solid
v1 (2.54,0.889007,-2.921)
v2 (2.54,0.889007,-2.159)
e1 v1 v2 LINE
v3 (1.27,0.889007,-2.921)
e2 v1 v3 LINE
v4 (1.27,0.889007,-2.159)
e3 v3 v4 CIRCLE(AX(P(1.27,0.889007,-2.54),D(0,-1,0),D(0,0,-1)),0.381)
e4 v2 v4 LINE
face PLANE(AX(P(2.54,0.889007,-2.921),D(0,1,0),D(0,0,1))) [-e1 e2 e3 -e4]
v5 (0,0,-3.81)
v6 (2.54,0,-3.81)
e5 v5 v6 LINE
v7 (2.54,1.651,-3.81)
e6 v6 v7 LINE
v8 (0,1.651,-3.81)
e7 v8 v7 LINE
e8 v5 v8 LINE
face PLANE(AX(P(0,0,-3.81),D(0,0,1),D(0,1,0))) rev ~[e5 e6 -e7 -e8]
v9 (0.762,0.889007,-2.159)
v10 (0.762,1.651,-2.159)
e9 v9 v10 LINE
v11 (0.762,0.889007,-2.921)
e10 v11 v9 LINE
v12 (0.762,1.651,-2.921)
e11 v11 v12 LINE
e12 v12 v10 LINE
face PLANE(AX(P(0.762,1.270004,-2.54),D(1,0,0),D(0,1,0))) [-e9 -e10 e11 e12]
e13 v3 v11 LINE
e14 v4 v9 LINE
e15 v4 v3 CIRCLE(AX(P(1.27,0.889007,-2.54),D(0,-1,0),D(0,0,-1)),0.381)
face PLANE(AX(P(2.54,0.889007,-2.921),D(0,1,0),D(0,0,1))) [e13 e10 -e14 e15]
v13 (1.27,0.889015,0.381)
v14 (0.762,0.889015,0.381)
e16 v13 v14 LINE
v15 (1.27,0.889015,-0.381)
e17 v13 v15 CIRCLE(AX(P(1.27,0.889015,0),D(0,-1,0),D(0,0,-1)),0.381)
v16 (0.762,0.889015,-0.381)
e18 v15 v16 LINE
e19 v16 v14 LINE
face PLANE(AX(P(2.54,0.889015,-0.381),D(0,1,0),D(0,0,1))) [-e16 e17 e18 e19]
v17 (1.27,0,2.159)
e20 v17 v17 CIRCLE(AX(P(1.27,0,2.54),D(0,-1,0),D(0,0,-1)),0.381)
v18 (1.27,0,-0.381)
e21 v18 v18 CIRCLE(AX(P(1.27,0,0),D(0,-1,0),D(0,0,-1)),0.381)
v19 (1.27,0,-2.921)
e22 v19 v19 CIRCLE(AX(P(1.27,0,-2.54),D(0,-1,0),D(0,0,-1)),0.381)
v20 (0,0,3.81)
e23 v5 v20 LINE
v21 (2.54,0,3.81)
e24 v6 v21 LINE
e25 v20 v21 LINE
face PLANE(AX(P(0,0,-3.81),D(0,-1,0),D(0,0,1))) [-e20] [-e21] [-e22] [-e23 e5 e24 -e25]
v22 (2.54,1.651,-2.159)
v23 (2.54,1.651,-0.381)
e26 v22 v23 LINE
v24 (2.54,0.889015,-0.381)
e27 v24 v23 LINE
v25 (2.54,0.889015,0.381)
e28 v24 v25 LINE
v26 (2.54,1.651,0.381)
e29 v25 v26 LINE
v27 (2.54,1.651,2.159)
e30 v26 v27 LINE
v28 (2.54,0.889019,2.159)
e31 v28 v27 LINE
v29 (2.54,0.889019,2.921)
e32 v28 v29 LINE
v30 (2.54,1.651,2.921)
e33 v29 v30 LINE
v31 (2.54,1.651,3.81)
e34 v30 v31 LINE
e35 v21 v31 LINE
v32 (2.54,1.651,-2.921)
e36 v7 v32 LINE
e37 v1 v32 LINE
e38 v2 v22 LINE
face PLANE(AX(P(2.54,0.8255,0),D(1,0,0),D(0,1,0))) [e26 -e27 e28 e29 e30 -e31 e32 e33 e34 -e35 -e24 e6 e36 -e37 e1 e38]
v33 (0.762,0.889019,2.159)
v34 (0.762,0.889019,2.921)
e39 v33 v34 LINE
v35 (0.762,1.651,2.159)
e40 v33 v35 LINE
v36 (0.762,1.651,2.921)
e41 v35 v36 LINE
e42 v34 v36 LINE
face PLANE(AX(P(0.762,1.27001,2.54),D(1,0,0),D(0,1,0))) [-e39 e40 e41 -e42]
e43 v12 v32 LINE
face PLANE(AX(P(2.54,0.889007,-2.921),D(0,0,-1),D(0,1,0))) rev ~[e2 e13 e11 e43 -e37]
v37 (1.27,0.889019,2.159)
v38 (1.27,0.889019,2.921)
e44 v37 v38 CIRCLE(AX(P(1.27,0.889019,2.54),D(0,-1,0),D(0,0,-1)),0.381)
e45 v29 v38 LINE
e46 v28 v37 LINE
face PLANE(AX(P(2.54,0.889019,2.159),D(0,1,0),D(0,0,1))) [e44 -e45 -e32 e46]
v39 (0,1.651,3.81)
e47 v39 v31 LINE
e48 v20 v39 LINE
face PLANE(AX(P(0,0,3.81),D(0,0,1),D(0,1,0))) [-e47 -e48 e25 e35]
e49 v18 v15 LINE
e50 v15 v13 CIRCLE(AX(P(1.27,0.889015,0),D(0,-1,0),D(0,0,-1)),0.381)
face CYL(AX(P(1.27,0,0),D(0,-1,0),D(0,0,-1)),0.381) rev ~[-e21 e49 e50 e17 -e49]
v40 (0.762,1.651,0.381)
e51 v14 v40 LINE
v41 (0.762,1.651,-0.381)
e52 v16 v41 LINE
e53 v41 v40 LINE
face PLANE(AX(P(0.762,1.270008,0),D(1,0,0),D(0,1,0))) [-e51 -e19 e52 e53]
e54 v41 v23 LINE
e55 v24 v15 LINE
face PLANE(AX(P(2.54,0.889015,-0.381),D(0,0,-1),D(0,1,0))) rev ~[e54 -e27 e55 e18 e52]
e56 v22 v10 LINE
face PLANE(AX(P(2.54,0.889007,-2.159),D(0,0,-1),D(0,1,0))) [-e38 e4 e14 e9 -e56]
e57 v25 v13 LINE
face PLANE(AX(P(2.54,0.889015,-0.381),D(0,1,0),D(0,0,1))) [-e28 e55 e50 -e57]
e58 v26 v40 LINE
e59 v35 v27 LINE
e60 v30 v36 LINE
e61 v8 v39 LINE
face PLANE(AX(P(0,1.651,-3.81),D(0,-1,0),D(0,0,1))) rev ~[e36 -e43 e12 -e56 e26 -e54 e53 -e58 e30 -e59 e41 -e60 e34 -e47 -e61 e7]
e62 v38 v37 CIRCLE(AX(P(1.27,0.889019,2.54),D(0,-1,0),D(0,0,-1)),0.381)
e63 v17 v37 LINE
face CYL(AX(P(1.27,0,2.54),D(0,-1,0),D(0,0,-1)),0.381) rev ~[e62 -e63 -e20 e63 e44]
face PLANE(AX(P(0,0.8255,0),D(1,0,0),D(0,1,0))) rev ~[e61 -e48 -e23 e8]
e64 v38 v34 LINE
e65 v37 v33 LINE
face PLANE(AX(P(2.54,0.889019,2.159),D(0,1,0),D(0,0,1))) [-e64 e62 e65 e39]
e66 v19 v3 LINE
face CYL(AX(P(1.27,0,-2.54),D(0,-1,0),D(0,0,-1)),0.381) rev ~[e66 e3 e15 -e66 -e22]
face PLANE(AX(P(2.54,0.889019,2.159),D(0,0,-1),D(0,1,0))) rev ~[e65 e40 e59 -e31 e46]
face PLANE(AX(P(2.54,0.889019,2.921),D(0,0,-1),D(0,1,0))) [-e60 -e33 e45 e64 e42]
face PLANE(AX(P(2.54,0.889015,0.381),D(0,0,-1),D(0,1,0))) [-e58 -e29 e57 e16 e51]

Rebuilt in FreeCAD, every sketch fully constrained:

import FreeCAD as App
import Part
import Sketcher
from FreeCAD import Vector
Q = App.Units.Quantity

doc = App.newDocument("Part")
body = doc.addObject("PartDesign::Body", "Body")

sketch1 = body.newObject("Sketcher::SketchObject", "Sketch")
sketch1.AttachmentSupport = (doc.getObject("YZ_Plane"), [""])
sketch1.MapMode = "FlatFace"
sketch1.addGeometry([
    Part.LineSegment(Vector(0, 3.81, 0), Vector(0, -3.81, 0)),
    Part.LineSegment(Vector(0, -3.81, 0), Vector(1.651, -3.81, 0)),
    Part.LineSegment(Vector(1.651, -3.81, 0), Vector(1.651, 3.81, 0)),
    Part.LineSegment(Vector(1.651, 3.81, 0), Vector(0, 3.81, 0)),
], False)
sketch1.addConstraint([
    Sketcher.Constraint("Coincident", 0, 2, 1, 1),
    Sketcher.Constraint("Coincident", 1, 2, 2, 1),
    Sketcher.Constraint("Coincident", 2, 2, 3, 1),
    Sketcher.Constraint("Coincident", 3, 2, 0, 1),
    Sketcher.Constraint("Vertical", 0),
    Sketcher.Constraint("Horizontal", 1),
    Sketcher.Constraint("Vertical", 2),
    Sketcher.Constraint("Horizontal", 3),
    Sketcher.Constraint("Symmetric", 0, 2, 3, 2, -1, 1),
    Sketcher.Constraint("DistanceY", 0, 2, 0, 1, Q("0.3 in")),
    Sketcher.Constraint("DistanceX", 1, 1, 1, 2, Q("0.065 in")),
])
pad1 = body.newObject("PartDesign::Pad", "Pad")
pad1.Profile = sketch1
pad1.Length = Q("0.1 in")

sketch2 = body.newObject("Sketcher::SketchObject", "Sketch001")
sketch2.AttachmentSupport = (doc.getObject("YZ_Plane"), [""])
sketch2.MapMode = "FlatFace"
sketch2.AttachmentOffset = App.Placement(Vector(0, 0, 0.1 * 25.4), App.Rotation())
sketch2.addGeometry([
    Part.LineSegment(Vector(0.889019, 2.921, 0), Vector(0.889019, 2.159, 0)),
    Part.LineSegment(Vector(0.889019, 2.159, 0), Vector(1.651001, 2.159, 0)),
    Part.LineSegment(Vector(1.651001, 2.159, 0), Vector(1.651001, 2.921, 0)),
    Part.LineSegment(Vector(1.651001, 2.921, 0), Vector(0.889019, 2.921, 0)),
    Part.LineSegment(Vector(0.889015, 0.381, 0), Vector(0.889015, -0.381, 0)),
    Part.LineSegment(Vector(0.889015, -0.381, 0), Vector(1.651001, -0.381, 0)),
    Part.LineSegment(Vector(1.651001, -0.381, 0), Vector(1.651001, 0.381, 0)),
    Part.LineSegment(Vector(1.651001, 0.381, 0), Vector(0.889015, 0.381, 0)),
    Part.LineSegment(Vector(0.889007, -2.159, 0), Vector(0.889007, -2.921, 0)),
    Part.LineSegment(Vector(0.889007, -2.921, 0), Vector(1.651001, -2.921, 0)),
    Part.LineSegment(Vector(1.651001, -2.921, 0), Vector(1.651001, -2.159, 0)),
    Part.LineSegment(Vector(1.651001, -2.159, 0), Vector(0.889007, -2.159, 0)),
], False)
sketch2.addConstraint([
    Sketcher.Constraint("Coincident", 0, 2, 1, 1),
    Sketcher.Constraint("Coincident", 1, 2, 2, 1),
    Sketcher.Constraint("Coincident", 2, 2, 3, 1),
    Sketcher.Constraint("Coincident", 3, 2, 0, 1),
    Sketcher.Constraint("Coincident", 4, 2, 5, 1),
    Sketcher.Constraint("Coincident", 5, 2, 6, 1),
    Sketcher.Constraint("Coincident", 6, 2, 7, 1),
    Sketcher.Constraint("Coincident", 7, 2, 4, 1),
    Sketcher.Constraint("Coincident", 8, 2, 9, 1),
    Sketcher.Constraint("Coincident", 9, 2, 10, 1),
    Sketcher.Constraint("Coincident", 10, 2, 11, 1),
    Sketcher.Constraint("Coincident", 11, 2, 8, 1),
    Sketcher.Constraint("Vertical", 0),
    Sketcher.Constraint("Horizontal", 1),
    Sketcher.Constraint("Vertical", 2),
    Sketcher.Constraint("Horizontal", 3),
    Sketcher.Constraint("Vertical", 4),
    Sketcher.Constraint("Horizontal", 5),
    Sketcher.Constraint("Vertical", 6),
    Sketcher.Constraint("Horizontal", 7),
    Sketcher.Constraint("Vertical", 8),
    Sketcher.Constraint("Horizontal", 9),
    Sketcher.Constraint("Vertical", 10),
    Sketcher.Constraint("Horizontal", 11),
    Sketcher.Constraint("Symmetric", 2, 2, 9, 2, -1),
    Sketcher.Constraint("Vertical", 2, 2, 5, 2),
    Sketcher.Constraint("Equal", 2, 4),
    Sketcher.Constraint("Equal", 6, 8),
    Sketcher.Constraint("DistanceY", 0, 2, 0, 1, Q("0.03 in")),
    Sketcher.Constraint("DistanceY", 4, 2, 0, 2, Q("0.1 in")),
    Sketcher.Constraint("DistanceY", 8, 2, 4, 2, Q("0.1 in")),
    Sketcher.Constraint("DistanceX", -1, 1, 1, 2, Q("0.065 in")),
    Sketcher.Constraint("DistanceX", 1, 1, 1, 2, 0.761982),
    Sketcher.Constraint("DistanceX", 5, 1, 5, 2, 0.761985),
    Sketcher.Constraint("DistanceX", 9, 1, 9, 2, 0.761994),
])
pocket1 = body.newObject("PartDesign::Pocket", "Pocket")
pocket1.Profile = sketch2
pocket1.Length = Q("0.07 in")

sketch3 = body.newObject("Sketcher::SketchObject", "Sketch002")
sketch3.AttachmentSupport = (doc.getObject("XZ_Plane"), [""])
sketch3.MapMode = "FlatFace"
sketch3.addGeometry([
    Part.Circle(Vector(1.27, 0, 0), Vector(0, 0, 1), 0.381),
    Part.Circle(Vector(1.27, 2.54, 0), Vector(0, 0, 1), 0.381),
    Part.Circle(Vector(1.27, -2.54, 0), Vector(0, 0, 1), 0.381),
], False)
sketch3.addConstraint([
    Sketcher.Constraint("Equal", 0, 1),
    Sketcher.Constraint("Equal", 1, 2),
    Sketcher.Constraint("Symmetric", 1, 3, 2, 3, -1),
    Sketcher.Constraint("PointOnObject", 0, 3, -1),
    Sketcher.Constraint("Vertical", 0, 3, 1, 3),
    Sketcher.Constraint("Diameter", 0, Q("0.03 in")),
    Sketcher.Constraint("DistanceY", -1, 1, 1, 3, Q("0.1 in")),
    Sketcher.Constraint("DistanceX", -1, 1, 0, 3, Q("0.05 in")),
])
pocket2 = body.newObject("PartDesign::Pocket", "Pocket001")
pocket2.Profile = sketch3
pocket2.Type = "ThroughAll"

doc.recompute()
